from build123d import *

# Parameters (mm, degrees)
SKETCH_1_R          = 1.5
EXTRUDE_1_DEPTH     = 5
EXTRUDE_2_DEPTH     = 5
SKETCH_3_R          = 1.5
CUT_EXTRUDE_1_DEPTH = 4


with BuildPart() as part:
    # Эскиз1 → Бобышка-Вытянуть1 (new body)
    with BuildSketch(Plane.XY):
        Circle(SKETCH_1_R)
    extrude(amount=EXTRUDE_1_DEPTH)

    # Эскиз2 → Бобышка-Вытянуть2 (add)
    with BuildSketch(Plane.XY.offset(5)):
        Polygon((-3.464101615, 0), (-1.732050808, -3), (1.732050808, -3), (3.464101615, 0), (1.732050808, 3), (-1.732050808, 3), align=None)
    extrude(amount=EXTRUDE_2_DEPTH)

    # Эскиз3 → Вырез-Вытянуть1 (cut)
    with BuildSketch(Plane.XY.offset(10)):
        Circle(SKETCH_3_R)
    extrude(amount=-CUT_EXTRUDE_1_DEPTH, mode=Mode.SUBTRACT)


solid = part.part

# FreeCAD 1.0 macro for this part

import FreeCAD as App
import Part
import Sketcher

V = App.Vector
Q = App.Units.Quantity


def add_polygon(sketch, points):
    """Adds a closed chain of lines whose ends are joined by coincident constraints."""
    first, n = sketch.GeometryCount, len(points)
    for a, b in zip(points, points[1:] + points[:1]):
        sketch.addGeometry(Part.LineSegment(App.Vector(*a, 0), App.Vector(*b, 0)), False)
    for i in range(n):
        sketch.addConstraint(Sketcher.Constraint("Coincident", first + i, 2, first + (i + 1) % n, 1))

doc = App.newDocument("Part")
body = doc.addObject("PartDesign::Body", "Body")

# Sketch on XY plane
sketch1 = doc.addObject("Sketcher::SketchObject", "Sketch")
body.addObject(sketch1)
sketch1.AttachmentSupport = (doc.XY_Plane, [""])
sketch1.MapMode = "FlatFace"
sketch1.addGeometry(Part.Circle(V(0, 0, 0), V(0, 0, 1), 1.5), False)
sketch1.addConstraint([
    Sketcher.Constraint("Coincident", 0, 3, -1, 1),
    Sketcher.Constraint("Diameter", 0, Q("3 mm")),
])
pad1 = doc.addObject("PartDesign::Pad", "Pad")
body.addObject(pad1)
pad1.Profile = sketch1
pad1.Length = 5

# Sketch on XY plane
sketch2 = doc.addObject("Sketcher::SketchObject", "Sketch001")
body.addObject(sketch2)
sketch2.AttachmentSupport = (doc.XY_Plane, [""])
sketch2.MapMode = "FlatFace"
sketch2.AttachmentOffset = App.Placement(V(0, 0, 5), App.Rotation())
add_polygon(sketch2, [(-3.5, 0), (-1.7, -3), (1.7, -3), (3.5, 0), (1.7, 3), (-1.7, 3)])  # lines 0-5
sketch2.addConstraint([
    Sketcher.Constraint("Horizontal", 1),
    Sketcher.Constraint("Horizontal", 4),
    Sketcher.Constraint("Symmetric", 0, 2, 3, 2, -1, 1),
    Sketcher.Constraint("Symmetric", 2, 2, 5, 2, -1, 1),
    Sketcher.Constraint("PointOnObject", 2, 2, -1),
    Sketcher.Constraint("Parallel", 2, 5),
    Sketcher.Constraint("Vertical", 1, 2, 3, 2),
    Sketcher.Constraint("Angle", 0, Q("-60 deg")),
    Sketcher.Constraint("DistanceY", 0, 2, -1, 1, Q("3 mm")),
    Sketcher.Constraint("DistanceX", 1, 1, 1, 2, Q("3.464102 mm")),
])
pad2 = doc.addObject("PartDesign::Pad", "Pad001")
body.addObject(pad2)
pad2.Profile = sketch2
pad2.Length = 5

# Sketch on XY plane
sketch3 = doc.addObject("Sketcher::SketchObject", "Sketch002")
body.addObject(sketch3)
sketch3.AttachmentSupport = (doc.XY_Plane, [""])
sketch3.MapMode = "FlatFace"
sketch3.AttachmentOffset = App.Placement(V(0, 0, 10), App.Rotation())
sketch3.addGeometry(Part.Circle(V(0, 0, 0), V(0, 0, 1), 1.5), False)
sketch3.addConstraint([
    Sketcher.Constraint("Coincident", 0, 3, -1, 1),
    Sketcher.Constraint("Diameter", 0, Q("3 mm")),
])
pocket1 = doc.addObject("PartDesign::Pocket", "Pocket")
body.addObject(pocket1)
pocket1.Profile = sketch3
pocket1.Length = 4

doc.recompute()
